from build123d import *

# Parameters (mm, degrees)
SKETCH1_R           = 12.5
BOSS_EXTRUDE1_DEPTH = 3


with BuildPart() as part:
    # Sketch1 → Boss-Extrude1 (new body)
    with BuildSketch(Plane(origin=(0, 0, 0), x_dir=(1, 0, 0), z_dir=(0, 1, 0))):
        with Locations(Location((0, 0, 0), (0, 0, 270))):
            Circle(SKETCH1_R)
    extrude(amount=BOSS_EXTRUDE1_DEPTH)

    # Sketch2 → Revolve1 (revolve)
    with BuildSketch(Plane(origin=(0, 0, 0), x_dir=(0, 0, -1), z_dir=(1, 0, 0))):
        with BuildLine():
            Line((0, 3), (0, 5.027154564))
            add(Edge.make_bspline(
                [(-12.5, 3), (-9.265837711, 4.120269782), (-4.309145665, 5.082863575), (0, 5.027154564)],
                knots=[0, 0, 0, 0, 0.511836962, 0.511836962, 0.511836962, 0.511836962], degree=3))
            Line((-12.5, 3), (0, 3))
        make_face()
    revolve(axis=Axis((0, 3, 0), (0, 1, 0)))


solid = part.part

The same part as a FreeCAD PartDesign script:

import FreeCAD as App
import Part
import Sketcher
from FreeCAD import Vector
Q = App.Units.Quantity

doc = App.newDocument("Part")
body = doc.addObject("PartDesign::Body", "Body")

# Sketch on XZ plane
sketch1 = body.newObject("Sketcher::SketchObject", "Sketch")
sketch1.AttachmentSupport = (doc.getObject("XZ_Plane"), [""])
sketch1.MapMode = "FlatFace"
sketch1.addGeometry(Part.Circle(Vector(0, 0, 0), Vector(0, 0, 1), 12), False)
sketch1.addConstraint([
    Sketcher.Constraint("Coincident", 0, 3, -1, 1),
    Sketcher.Constraint("Diameter", 0, Q("25 mm")),
])
pad1 = body.newObject("PartDesign::Pad", "Pad")
pad1.Profile = sketch1
pad1.Length = 3
pad1.Reversed = True

# Sketch on YZ plane
sketch2 = body.newObject("Sketcher::SketchObject", "Sketch001")
sketch2.AttachmentSupport = (doc.getObject("YZ_Plane"), [""])
sketch2.MapMode = "FlatFace"
sketch2.addGeometry([
    Part.LineSegment(Vector(3, 0, 0), Vector(5.027155, 0, 0)),
    Part.BSplineCurve([Vector(3, 12.5, 0), Vector(4.12027, 9.265838, 0), Vector(5.082864, 4.309146, 0), Vector(5.027155, 0, 0)], [4, 4], [0, 0.511836962], False, 3, [1, 1, 1, 1], False),
    Part.LineSegment(Vector(3, 12.5, 0), Vector(3, 0, 0)),
], False)
sketch2.addConstraint([
    Sketcher.Constraint("Block", 1),
    Sketcher.Constraint("Coincident", 0, 2, 1, 2),
    Sketcher.Constraint("Coincident", 1, 1, 2, 1),
    Sketcher.Constraint("Coincident", 2, 2, 0, 1),
    Sketcher.Constraint("Horizontal", 0),
    Sketcher.Constraint("Vertical", 2),
])
revolution = body.newObject("PartDesign::Revolution", "Revolution")
revolution.Profile = sketch2
revolution.ReferenceAxis = (sketch2, ["H_Axis"])
revolution.Angle = 360

doc.recompute()
